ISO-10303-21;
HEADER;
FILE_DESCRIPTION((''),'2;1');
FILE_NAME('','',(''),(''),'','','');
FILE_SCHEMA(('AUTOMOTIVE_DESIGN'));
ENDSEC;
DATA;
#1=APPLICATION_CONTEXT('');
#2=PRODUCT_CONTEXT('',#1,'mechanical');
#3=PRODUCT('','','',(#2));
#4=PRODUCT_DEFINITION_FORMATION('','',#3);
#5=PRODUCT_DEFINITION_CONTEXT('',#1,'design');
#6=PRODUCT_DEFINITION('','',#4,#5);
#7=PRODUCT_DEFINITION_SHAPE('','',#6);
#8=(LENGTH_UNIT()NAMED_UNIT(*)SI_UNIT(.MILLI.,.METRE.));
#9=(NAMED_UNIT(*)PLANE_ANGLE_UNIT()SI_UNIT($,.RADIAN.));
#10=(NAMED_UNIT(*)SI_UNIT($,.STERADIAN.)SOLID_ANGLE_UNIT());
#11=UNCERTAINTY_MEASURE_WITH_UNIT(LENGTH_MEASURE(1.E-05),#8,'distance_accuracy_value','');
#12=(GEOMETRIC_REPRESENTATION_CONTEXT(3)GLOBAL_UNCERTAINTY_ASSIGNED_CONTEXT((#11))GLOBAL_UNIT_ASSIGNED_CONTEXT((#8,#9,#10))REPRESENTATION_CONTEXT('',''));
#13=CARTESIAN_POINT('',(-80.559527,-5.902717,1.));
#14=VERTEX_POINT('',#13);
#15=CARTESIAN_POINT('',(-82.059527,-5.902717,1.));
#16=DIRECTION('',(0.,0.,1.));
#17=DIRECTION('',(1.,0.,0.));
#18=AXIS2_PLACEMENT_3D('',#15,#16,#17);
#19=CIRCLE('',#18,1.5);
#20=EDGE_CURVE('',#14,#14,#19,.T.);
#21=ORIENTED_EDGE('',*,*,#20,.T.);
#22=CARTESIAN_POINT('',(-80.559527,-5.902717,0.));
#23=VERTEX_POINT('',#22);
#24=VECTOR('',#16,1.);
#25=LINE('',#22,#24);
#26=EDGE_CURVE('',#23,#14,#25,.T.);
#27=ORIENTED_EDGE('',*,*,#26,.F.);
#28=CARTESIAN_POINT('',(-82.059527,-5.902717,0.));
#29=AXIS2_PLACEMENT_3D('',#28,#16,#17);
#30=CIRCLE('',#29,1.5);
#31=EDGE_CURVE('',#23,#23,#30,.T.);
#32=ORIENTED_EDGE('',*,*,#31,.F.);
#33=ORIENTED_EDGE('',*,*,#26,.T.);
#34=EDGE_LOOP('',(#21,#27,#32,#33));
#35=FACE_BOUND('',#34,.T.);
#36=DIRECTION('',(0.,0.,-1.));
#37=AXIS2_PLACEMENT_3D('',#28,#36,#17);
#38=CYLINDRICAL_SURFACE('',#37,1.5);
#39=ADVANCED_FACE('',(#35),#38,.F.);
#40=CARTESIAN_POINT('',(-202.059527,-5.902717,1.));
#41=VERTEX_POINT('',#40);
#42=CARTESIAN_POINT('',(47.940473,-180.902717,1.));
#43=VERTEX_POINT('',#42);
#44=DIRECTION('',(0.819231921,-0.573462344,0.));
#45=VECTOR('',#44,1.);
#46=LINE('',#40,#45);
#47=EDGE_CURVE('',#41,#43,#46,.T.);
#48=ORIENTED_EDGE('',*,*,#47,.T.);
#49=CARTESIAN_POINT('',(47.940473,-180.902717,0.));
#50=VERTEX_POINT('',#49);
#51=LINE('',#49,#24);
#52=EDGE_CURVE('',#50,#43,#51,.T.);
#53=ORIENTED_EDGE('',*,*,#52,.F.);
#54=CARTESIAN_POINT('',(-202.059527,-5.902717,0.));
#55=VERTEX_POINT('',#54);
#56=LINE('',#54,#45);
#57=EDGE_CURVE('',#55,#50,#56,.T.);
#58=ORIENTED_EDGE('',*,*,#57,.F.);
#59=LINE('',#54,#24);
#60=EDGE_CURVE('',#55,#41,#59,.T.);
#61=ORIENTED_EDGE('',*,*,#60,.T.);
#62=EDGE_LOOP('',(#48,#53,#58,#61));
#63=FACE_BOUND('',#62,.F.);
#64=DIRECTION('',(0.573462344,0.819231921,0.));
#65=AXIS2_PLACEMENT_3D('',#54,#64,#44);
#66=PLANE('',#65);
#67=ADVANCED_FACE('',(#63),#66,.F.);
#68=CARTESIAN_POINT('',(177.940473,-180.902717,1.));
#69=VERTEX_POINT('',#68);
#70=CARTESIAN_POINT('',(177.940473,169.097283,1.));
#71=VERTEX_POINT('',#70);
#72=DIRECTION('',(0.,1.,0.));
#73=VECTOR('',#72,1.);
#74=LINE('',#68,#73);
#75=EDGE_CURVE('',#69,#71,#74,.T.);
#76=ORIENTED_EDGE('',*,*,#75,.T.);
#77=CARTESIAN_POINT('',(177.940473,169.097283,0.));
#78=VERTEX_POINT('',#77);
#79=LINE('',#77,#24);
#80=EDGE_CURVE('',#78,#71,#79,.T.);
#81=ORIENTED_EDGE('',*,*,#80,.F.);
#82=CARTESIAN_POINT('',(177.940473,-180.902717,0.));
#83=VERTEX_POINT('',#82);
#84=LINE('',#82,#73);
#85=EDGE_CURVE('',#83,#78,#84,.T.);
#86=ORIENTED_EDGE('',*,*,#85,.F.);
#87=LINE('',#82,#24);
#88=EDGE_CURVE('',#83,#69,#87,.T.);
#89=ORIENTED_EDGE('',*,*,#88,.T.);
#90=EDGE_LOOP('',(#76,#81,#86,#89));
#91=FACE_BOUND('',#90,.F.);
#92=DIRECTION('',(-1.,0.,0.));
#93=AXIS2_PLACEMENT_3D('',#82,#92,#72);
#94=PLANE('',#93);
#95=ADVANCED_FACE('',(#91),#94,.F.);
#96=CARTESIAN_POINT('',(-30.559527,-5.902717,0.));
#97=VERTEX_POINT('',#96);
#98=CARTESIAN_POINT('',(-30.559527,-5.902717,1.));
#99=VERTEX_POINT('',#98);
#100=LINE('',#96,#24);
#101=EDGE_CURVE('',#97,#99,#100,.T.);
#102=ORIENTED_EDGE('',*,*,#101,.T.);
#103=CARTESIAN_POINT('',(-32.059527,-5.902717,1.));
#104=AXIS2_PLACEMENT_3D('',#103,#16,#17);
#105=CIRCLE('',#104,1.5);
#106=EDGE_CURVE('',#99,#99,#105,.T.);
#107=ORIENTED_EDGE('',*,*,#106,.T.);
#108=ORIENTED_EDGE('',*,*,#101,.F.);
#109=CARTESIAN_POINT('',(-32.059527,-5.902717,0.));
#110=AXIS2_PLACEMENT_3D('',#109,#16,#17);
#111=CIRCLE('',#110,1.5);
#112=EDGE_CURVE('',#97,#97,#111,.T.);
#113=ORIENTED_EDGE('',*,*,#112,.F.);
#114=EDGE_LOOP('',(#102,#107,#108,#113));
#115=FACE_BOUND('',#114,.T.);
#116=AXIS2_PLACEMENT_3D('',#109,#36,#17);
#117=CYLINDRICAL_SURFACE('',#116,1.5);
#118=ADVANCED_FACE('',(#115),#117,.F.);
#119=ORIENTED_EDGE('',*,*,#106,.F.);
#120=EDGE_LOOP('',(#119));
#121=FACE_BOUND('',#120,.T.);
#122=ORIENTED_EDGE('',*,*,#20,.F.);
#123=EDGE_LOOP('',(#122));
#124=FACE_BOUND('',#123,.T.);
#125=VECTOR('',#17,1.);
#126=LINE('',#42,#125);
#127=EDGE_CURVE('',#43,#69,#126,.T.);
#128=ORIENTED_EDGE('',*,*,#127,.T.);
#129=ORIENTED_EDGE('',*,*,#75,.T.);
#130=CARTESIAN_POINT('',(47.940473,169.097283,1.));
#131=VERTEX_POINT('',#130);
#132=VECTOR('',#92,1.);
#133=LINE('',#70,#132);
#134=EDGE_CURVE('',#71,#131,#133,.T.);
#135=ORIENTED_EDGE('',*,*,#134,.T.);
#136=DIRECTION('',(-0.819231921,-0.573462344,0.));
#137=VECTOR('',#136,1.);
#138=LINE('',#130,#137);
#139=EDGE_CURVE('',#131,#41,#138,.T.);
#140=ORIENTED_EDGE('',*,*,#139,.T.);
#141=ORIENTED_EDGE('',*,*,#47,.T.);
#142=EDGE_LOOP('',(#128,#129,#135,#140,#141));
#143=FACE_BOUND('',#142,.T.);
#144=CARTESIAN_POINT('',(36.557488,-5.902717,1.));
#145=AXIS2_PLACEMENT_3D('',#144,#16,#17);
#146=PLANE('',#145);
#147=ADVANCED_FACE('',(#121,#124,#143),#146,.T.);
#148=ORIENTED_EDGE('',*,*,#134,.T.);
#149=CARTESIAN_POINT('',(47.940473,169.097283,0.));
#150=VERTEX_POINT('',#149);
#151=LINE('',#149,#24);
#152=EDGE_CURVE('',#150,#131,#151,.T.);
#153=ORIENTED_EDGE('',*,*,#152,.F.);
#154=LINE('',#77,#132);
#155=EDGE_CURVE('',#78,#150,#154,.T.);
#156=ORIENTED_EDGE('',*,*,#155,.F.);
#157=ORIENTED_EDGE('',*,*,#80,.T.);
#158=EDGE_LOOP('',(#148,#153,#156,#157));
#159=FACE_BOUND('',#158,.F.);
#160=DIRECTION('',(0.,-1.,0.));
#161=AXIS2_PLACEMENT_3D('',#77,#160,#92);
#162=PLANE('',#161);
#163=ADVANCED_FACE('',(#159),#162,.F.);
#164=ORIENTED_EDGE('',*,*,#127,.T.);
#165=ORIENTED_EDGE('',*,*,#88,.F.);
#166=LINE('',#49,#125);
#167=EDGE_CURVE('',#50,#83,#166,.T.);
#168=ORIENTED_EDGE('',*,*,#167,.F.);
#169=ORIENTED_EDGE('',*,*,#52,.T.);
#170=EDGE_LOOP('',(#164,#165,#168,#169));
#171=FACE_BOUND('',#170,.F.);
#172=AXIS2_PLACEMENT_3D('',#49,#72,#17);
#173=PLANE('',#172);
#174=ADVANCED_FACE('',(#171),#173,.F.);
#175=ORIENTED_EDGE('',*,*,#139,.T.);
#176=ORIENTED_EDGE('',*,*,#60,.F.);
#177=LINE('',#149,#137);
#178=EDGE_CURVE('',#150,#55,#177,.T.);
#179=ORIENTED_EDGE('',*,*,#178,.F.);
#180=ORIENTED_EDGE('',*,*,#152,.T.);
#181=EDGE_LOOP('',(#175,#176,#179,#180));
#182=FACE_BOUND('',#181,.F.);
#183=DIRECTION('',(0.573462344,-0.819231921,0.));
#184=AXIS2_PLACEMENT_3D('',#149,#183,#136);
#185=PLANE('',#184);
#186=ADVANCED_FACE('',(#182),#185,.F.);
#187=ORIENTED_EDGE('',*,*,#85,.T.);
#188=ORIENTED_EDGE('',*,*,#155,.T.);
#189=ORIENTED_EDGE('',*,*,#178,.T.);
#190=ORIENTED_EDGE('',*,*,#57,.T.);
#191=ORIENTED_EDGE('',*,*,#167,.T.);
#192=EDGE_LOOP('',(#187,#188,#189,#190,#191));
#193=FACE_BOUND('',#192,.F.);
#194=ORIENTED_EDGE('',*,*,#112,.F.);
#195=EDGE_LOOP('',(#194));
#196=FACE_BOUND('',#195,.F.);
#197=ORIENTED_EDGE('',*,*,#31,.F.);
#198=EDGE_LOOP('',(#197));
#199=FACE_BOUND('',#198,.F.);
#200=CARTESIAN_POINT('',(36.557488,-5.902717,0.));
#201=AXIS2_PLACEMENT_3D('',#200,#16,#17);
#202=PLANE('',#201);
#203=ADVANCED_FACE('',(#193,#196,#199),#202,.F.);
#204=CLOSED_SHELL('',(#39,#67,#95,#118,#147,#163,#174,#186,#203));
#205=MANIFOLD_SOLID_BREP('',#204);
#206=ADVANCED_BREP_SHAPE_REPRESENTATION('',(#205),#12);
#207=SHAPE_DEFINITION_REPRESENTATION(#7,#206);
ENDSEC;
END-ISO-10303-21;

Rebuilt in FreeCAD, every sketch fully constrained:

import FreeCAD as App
import Part
import Sketcher

doc = App.newDocument("Part")
body = doc.addObject("PartDesign::Body", "Body")

sketch1 = body.newObject("Sketcher::SketchObject", "Sketch")
sketch1.AttachmentSupport = (doc.getObject("XY_Plane"), [""])
sketch1.MapMode = "FlatFace"
sketch1.addGeometry([
    Part.LineSegment(App.Vector(177.9, 169.1, 0), App.Vector(47.9, 169.1, 0)),
    Part.LineSegment(App.Vector(47.9, 169.1, 0), App.Vector(-202.1, -5.9, 0)),
    Part.LineSegment(App.Vector(-202.1, -5.9, 0), App.Vector(47.9, -180.9, 0)),
    Part.LineSegment(App.Vector(47.9, -180.9, 0), App.Vector(177.9, -180.9, 0)),
    Part.LineSegment(App.Vector(177.9, -180.9, 0), App.Vector(177.9, 169.1, 0)),
    Part.Circle(App.Vector(-82.1, -5.9, 0), App.Vector(0, 0, 1), 1.5),
    Part.Circle(App.Vector(-32.1, -5.9, 0), App.Vector(0, 0, 1), 1.5),
], False)
sketch1.addConstraint([
    Sketcher.Constraint("Coincident", 0, 2, 1, 1),
    Sketcher.Constraint("Coincident", 1, 2, 2, 1),
    Sketcher.Constraint("Coincident", 2, 2, 3, 1),
    Sketcher.Constraint("Coincident", 3, 2, 4, 1),
    Sketcher.Constraint("Coincident", 4, 2, 0, 1),
    Sketcher.Constraint("Horizontal", 0),
    Sketcher.Constraint("Horizontal", 3),
    Sketcher.Constraint("Vertical", 4),
    Sketcher.Constraint("Equal", 5, 6),
    Sketcher.Constraint("Horizontal", 5, 3, 6, 3),
    Sketcher.Constraint("Horizontal", 6, 3, 1, 2),
    Sketcher.Constraint("Vertical", 0, 2, 2, 2),
    Sketcher.Constraint("Equal", 1, 2),
    Sketcher.Constraint("Diameter", 5, 3.0),
    Sketcher.Constraint("DistanceX", 0, 2, 0, 1, 130.0),
    Sketcher.Constraint("DistanceY", 4, 1, 4, 2, 350.0),
    Sketcher.Constraint("DistanceX", 5, 3, 6, 3, 50.0),
    Sketcher.Constraint("DistanceX", 6, 3, 0, 2, 80.0),
    Sketcher.Constraint("DistanceX", 1, 2, 5, 3, 120.0),
    Sketcher.Constraint("DistanceX", 5, 3, -1, 1, 82.059527),
    Sketcher.Constraint("DistanceY", 5, 3, -1, 1, 5.902717),
])
pad1 = body.newObject("PartDesign::Pad", "Pad")
pad1.Profile = sketch1
pad1.Length = 1

doc.recompute()
